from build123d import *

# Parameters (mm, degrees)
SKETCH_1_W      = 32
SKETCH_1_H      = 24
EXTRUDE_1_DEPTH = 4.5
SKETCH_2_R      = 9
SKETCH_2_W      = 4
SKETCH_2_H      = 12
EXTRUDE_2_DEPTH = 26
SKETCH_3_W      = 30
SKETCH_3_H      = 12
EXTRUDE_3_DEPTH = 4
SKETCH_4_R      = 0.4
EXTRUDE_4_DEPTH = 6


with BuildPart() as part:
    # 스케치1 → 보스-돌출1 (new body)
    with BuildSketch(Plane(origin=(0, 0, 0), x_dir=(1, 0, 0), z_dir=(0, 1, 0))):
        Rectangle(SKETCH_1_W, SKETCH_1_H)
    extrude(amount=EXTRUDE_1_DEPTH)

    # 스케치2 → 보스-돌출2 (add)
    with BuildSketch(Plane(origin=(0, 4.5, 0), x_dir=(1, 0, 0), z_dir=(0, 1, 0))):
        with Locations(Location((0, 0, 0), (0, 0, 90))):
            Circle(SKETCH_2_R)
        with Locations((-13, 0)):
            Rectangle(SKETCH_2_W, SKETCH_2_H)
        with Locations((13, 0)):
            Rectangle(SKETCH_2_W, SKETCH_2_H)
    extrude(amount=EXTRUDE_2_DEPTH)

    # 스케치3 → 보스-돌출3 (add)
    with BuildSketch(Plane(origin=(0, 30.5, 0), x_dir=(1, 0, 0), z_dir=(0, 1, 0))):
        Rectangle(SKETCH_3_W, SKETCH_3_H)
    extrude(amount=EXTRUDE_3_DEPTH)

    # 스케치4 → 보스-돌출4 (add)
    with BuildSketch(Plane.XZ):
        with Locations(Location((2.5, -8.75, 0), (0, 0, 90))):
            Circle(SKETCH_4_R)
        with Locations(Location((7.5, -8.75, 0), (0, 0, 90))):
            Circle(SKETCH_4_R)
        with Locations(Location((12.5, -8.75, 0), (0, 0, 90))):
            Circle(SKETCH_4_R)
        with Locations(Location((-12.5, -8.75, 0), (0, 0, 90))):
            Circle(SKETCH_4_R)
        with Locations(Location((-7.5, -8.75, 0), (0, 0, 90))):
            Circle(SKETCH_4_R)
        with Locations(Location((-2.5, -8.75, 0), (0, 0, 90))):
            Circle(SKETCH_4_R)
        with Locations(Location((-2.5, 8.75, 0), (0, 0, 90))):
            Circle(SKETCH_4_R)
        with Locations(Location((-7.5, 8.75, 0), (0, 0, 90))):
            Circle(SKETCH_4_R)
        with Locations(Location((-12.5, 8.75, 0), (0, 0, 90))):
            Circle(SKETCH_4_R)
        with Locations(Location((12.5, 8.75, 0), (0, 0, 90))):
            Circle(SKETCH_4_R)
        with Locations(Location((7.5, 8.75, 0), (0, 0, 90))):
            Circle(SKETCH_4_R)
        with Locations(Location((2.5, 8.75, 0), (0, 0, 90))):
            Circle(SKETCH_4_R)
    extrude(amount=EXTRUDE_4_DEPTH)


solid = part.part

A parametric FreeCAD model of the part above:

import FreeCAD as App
import Part
import Sketcher

V = App.Vector
Q = App.Units.Quantity

doc = App.newDocument("Part")
body = doc.addObject("PartDesign::Body", "Body")

# Sketch on XZ plane
sketch1 = body.newObject("Sketcher::SketchObject", "Sketch")
sketch1.AttachmentSupport = (doc.getObject("XZ_Plane"), [""])
sketch1.MapMode = "FlatFace"
sketch1.addGeometry(Part.LineSegment(V(-16, -12, 0), V(-16, 12, 0)), False)
sketch1.addGeometry(Part.LineSegment(V(-16, 12, 0), V(16, 12, 0)), False)
sketch1.addGeometry(Part.LineSegment(V(16, 12, 0), V(16, -12, 0)), False)
sketch1.addGeometry(Part.LineSegment(V(16, -12, 0), V(-16, -12, 0)), False)
sketch1.addConstraint(Sketcher.Constraint("Coincident", 0, 2, 1, 1))
sketch1.addConstraint(Sketcher.Constraint("Coincident", 1, 2, 2, 1))
sketch1.addConstraint(Sketcher.Constraint("Coincident", 2, 2, 3, 1))
sketch1.addConstraint(Sketcher.Constraint("Coincident", 3, 2, 0, 1))
sketch1.addConstraint(Sketcher.Constraint("Vertical", 0))
sketch1.addConstraint(Sketcher.Constraint("Horizontal", 1))
sketch1.addConstraint(Sketcher.Constraint("Vertical", 2))
sketch1.addConstraint(Sketcher.Constraint("Horizontal", 3))
sketch1.addConstraint(Sketcher.Constraint("Symmetric", 0, 2, 2, 2, -1, 1))
sketch1.addConstraint(Sketcher.Constraint("DistanceX", 1, 1, 1, 2, Q("32 mm")))
sketch1.addConstraint(Sketcher.Constraint("DistanceY", 0, 1, 0, 2, Q("24 mm")))
pad1 = body.newObject("PartDesign::Pad", "Pad")
pad1.Profile = sketch1
pad1.Length = 4.5
pad1.Reversed = True

# Sketch on XZ plane
sketch2 = body.newObject("Sketcher::SketchObject", "Sketch001")
sketch2.AttachmentSupport = (doc.getObject("XZ_Plane"), [""])
sketch2.MapMode = "FlatFace"
sketch2.AttachmentOffset = App.Placement(V(0, 0, -4.5), App.Rotation())
sketch2.addGeometry(Part.Circle(V(0, 0, 0), V(0, 0, 1), 9), False)
sketch2.addGeometry(Part.LineSegment(V(-15, -6, 0), V(-15, 6, 0)), False)
sketch2.addGeometry(Part.LineSegment(V(-15, 6, 0), V(-11, 6, 0)), False)
sketch2.addGeometry(Part.LineSegment(V(-11, 6, 0), V(-11, -6, 0)), False)
sketch2.addGeometry(Part.LineSegment(V(-11, -6, 0), V(-15, -6, 0)), False)
sketch2.addGeometry(Part.LineSegment(V(11, -6, 0), V(11, 6, 0)), False)
sketch2.addGeometry(Part.LineSegment(V(11, 6, 0), V(15, 6, 0)), False)
sketch2.addGeometry(Part.LineSegment(V(15, 6, 0), V(15, -6, 0)), False)
sketch2.addGeometry(Part.LineSegment(V(15, -6, 0), V(11, -6, 0)), False)
sketch2.addConstraint(Sketcher.Constraint("Coincident", 1, 2, 2, 1))
sketch2.addConstraint(Sketcher.Constraint("Coincident", 2, 2, 3, 1))
sketch2.addConstraint(Sketcher.Constraint("Coincident", 3, 2, 4, 1))
sketch2.addConstraint(Sketcher.Constraint("Coincident", 4, 2, 1, 1))
sketch2.addConstraint(Sketcher.Constraint("Coincident", 5, 2, 6, 1))
sketch2.addConstraint(Sketcher.Constraint("Coincident", 6, 2, 7, 1))
sketch2.addConstraint(Sketcher.Constraint("Coincident", 7, 2, 8, 1))
sketch2.addConstraint(Sketcher.Constraint("Coincident", 8, 2, 5, 1))
sketch2.addConstraint(Sketcher.Constraint("Vertical", 1))
sketch2.addConstraint(Sketcher.Constraint("Horizontal", 2))
sketch2.addConstraint(Sketcher.Constraint("Vertical", 3))
sketch2.addConstraint(Sketcher.Constraint("Horizontal", 4))
sketch2.addConstraint(Sketcher.Constraint("Vertical", 5))
sketch2.addConstraint(Sketcher.Constraint("Horizontal", 6))
sketch2.addConstraint(Sketcher.Constraint("Vertical", 7))
sketch2.addConstraint(Sketcher.Constraint("Horizontal", 8))
sketch2.addConstraint(Sketcher.Constraint("Coincident", 0, 3, -1, 1))
sketch2.addConstraint(Sketcher.Constraint("Symmetric", 3, 2, 5, 2, -1, 1))
sketch2.addConstraint(Sketcher.Constraint("Symmetric", 1, 2, 7, 2, -1, 1))
sketch2.addConstraint(Sketcher.Constraint("Horizontal", 2, 2, 5, 2))
sketch2.addConstraint(Sketcher.Constraint("Diameter", 0, Q("18 mm")))
sketch2.addConstraint(Sketcher.Constraint("DistanceX", 2, 1, 2, 2, Q("4 mm")))
sketch2.addConstraint(Sketcher.Constraint("DistanceY", 1, 1, 1, 2, Q("12 mm")))
sketch2.addConstraint(Sketcher.Constraint("DistanceX", 1, 2, -1, 1, Q("15 mm")))
pad2 = body.newObject("PartDesign::Pad", "Pad001")
pad2.Profile = sketch2
pad2.Length = 26
pad2.Reversed = True

# Sketch on XZ plane
sketch3 = body.newObject("Sketcher::SketchObject", "Sketch002")
sketch3.AttachmentSupport = (doc.getObject("XZ_Plane"), [""])
sketch3.MapMode = "FlatFace"
sketch3.AttachmentOffset = App.Placement(V(0, 0, -30.5), App.Rotation())
sketch3.addGeometry(Part.LineSegment(V(-15, -6, 0), V(-15, 6, 0)), False)
sketch3.addGeometry(Part.LineSegment(V(-15, 6, 0), V(15, 6, 0)), False)
sketch3.addGeometry(Part.LineSegment(V(15, 6, 0), V(15, -6, 0)), False)
sketch3.addGeometry(Part.LineSegment(V(15, -6, 0), V(-15, -6, 0)), False)
sketch3.addConstraint(Sketcher.Constraint("Coincident", 0, 2, 1, 1))
sketch3.addConstraint(Sketcher.Constraint("Coincident", 1, 2, 2, 1))
sketch3.addConstraint(Sketcher.Constraint("Coincident", 2, 2, 3, 1))
sketch3.addConstraint(Sketcher.Constraint("Coincident", 3, 2, 0, 1))
sketch3.addConstraint(Sketcher.Constraint("Vertical", 0))
sketch3.addConstraint(Sketcher.Constraint("Horizontal", 1))
sketch3.addConstraint(Sketcher.Constraint("Vertical", 2))
sketch3.addConstraint(Sketcher.Constraint("Horizontal", 3))
sketch3.addConstraint(Sketcher.Constraint("Symmetric", 0, 2, 2, 2, -1, 1))
sketch3.addConstraint(Sketcher.Constraint("DistanceX", 1, 1, 1, 2, Q("30 mm")))
sketch3.addConstraint(Sketcher.Constraint("DistanceY", 0, 1, 0, 2, Q("12 mm")))
pad3 = body.newObject("PartDesign::Pad", "Pad002")
pad3.Profile = sketch3
pad3.Length = 4
pad3.Reversed = True

# Sketch on XZ plane
sketch4 = body.newObject("Sketcher::SketchObject", "Sketch003")
sketch4.AttachmentSupport = (doc.getObject("XZ_Plane"), [""])
sketch4.MapMode = "FlatFace"
sketch4.addGeometry(Part.Circle(V(2.5, -8.75, 0), V(0, 0, 1), 0.4), False)
sketch4.addGeometry(Part.Circle(V(7.5, -8.75, 0), V(0, 0, 1), 0.4), False)
sketch4.addGeometry(Part.Circle(V(12.5, -8.75, 0), V(0, 0, 1), 0.4), False)
sketch4.addGeometry(Part.Circle(V(-12.5, -8.75, 0), V(0, 0, 1), 0.4), False)
sketch4.addGeometry(Part.Circle(V(-7.5, -8.75, 0), V(0, 0, 1), 0.4), False)
sketch4.addGeometry(Part.Circle(V(-2.5, -8.75, 0), V(0, 0, 1), 0.4), False)
sketch4.addGeometry(Part.Circle(V(-2.5, 8.75, 0), V(0, 0, 1), 0.4), False)
sketch4.addGeometry(Part.Circle(V(-7.5, 8.75, 0), V(0, 0, 1), 0.4), False)
sketch4.addGeometry(Part.Circle(V(-12.5, 8.75, 0), V(0, 0, 1), 0.4), False)
sketch4.addGeometry(Part.Circle(V(12.5, 8.75, 0), V(0, 0, 1), 0.4), False)
sketch4.addGeometry(Part.Circle(V(7.5, 8.75, 0), V(0, 0, 1), 0.4), False)
sketch4.addGeometry(Part.Circle(V(2.5, 8.75, 0), V(0, 0, 1), 0.4), False)
sketch4.addConstraint(Sketcher.Constraint("Equal", 0, 1))
sketch4.addConstraint(Sketcher.Constraint("Equal", 1, 2))
sketch4.addConstraint(Sketcher.Constraint("Equal", 2, 3))
sketch4.addConstraint(Sketcher.Constraint("Equal", 3, 4))
sketch4.addConstraint(Sketcher.Constraint("Equal", 4, 5))
sketch4.addConstraint(Sketcher.Constraint("Equal", 5, 6))
sketch4.addConstraint(Sketcher.Constraint("Equal", 6, 7))
sketch4.addConstraint(Sketcher.Constraint("Equal", 7, 8))
sketch4.addConstraint(Sketcher.Constraint("Equal", 8, 9))
sketch4.addConstraint(Sketcher.Constraint("Equal", 9, 10))
sketch4.addConstraint(Sketcher.Constraint("Equal", 10, 11))
sketch4.addConstraint(Sketcher.Constraint("Symmetric", 0, 3, 6, 3, -1, 1))
sketch4.addConstraint(Sketcher.Constraint("Symmetric", 1, 3, 7, 3, -1, 1))
sketch4.addConstraint(Sketcher.Constraint("Symmetric", 2, 3, 8, 3, -1, 1))
sketch4.addConstraint(Sketcher.Constraint("Symmetric", 3, 3, 9, 3, -1, 1))
sketch4.addConstraint(Sketcher.Constraint("Symmetric", 4, 3, 10, 3, -1, 1))
sketch4.addConstraint(Sketcher.Constraint("Symmetric", 5, 3, 11, 3, -1, 1))
sketch4.addConstraint(Sketcher.Constraint("Symmetric", 2, 3, 3, 3, -2))
sketch4.addConstraint(Sketcher.Constraint("Symmetric", 1, 3, 4, 3, -2))
sketch4.addConstraint(Sketcher.Constraint("Symmetric", 0, 3, 5, 3, -2))
sketch4.addConstraint(Sketcher.Constraint("Horizontal", 0, 3, 1, 3))
sketch4.addConstraint(Sketcher.Constraint("Horizontal", 1, 3, 2, 3))
sketch4.addConstraint(Sketcher.Constraint("Diameter", 0, Q("0.8 mm")))
sketch4.addConstraint(Sketcher.Constraint("DistanceX", 0, 3, 1, 3, Q("5 mm")))
sketch4.addConstraint(Sketcher.Constraint("DistanceX", 1, 3, 2, 3, Q("5 mm")))
sketch4.addConstraint(Sketcher.Constraint("DistanceX", 3, 3, 0, 3, Q("15 mm")))
sketch4.addConstraint(Sketcher.Constraint("DistanceY", 5, 3, 6, 3, Q("17.5 mm")))
pad4 = body.newObject("PartDesign::Pad", "Pad003")
pad4.Profile = sketch4
pad4.Length = 6

doc.recompute()
